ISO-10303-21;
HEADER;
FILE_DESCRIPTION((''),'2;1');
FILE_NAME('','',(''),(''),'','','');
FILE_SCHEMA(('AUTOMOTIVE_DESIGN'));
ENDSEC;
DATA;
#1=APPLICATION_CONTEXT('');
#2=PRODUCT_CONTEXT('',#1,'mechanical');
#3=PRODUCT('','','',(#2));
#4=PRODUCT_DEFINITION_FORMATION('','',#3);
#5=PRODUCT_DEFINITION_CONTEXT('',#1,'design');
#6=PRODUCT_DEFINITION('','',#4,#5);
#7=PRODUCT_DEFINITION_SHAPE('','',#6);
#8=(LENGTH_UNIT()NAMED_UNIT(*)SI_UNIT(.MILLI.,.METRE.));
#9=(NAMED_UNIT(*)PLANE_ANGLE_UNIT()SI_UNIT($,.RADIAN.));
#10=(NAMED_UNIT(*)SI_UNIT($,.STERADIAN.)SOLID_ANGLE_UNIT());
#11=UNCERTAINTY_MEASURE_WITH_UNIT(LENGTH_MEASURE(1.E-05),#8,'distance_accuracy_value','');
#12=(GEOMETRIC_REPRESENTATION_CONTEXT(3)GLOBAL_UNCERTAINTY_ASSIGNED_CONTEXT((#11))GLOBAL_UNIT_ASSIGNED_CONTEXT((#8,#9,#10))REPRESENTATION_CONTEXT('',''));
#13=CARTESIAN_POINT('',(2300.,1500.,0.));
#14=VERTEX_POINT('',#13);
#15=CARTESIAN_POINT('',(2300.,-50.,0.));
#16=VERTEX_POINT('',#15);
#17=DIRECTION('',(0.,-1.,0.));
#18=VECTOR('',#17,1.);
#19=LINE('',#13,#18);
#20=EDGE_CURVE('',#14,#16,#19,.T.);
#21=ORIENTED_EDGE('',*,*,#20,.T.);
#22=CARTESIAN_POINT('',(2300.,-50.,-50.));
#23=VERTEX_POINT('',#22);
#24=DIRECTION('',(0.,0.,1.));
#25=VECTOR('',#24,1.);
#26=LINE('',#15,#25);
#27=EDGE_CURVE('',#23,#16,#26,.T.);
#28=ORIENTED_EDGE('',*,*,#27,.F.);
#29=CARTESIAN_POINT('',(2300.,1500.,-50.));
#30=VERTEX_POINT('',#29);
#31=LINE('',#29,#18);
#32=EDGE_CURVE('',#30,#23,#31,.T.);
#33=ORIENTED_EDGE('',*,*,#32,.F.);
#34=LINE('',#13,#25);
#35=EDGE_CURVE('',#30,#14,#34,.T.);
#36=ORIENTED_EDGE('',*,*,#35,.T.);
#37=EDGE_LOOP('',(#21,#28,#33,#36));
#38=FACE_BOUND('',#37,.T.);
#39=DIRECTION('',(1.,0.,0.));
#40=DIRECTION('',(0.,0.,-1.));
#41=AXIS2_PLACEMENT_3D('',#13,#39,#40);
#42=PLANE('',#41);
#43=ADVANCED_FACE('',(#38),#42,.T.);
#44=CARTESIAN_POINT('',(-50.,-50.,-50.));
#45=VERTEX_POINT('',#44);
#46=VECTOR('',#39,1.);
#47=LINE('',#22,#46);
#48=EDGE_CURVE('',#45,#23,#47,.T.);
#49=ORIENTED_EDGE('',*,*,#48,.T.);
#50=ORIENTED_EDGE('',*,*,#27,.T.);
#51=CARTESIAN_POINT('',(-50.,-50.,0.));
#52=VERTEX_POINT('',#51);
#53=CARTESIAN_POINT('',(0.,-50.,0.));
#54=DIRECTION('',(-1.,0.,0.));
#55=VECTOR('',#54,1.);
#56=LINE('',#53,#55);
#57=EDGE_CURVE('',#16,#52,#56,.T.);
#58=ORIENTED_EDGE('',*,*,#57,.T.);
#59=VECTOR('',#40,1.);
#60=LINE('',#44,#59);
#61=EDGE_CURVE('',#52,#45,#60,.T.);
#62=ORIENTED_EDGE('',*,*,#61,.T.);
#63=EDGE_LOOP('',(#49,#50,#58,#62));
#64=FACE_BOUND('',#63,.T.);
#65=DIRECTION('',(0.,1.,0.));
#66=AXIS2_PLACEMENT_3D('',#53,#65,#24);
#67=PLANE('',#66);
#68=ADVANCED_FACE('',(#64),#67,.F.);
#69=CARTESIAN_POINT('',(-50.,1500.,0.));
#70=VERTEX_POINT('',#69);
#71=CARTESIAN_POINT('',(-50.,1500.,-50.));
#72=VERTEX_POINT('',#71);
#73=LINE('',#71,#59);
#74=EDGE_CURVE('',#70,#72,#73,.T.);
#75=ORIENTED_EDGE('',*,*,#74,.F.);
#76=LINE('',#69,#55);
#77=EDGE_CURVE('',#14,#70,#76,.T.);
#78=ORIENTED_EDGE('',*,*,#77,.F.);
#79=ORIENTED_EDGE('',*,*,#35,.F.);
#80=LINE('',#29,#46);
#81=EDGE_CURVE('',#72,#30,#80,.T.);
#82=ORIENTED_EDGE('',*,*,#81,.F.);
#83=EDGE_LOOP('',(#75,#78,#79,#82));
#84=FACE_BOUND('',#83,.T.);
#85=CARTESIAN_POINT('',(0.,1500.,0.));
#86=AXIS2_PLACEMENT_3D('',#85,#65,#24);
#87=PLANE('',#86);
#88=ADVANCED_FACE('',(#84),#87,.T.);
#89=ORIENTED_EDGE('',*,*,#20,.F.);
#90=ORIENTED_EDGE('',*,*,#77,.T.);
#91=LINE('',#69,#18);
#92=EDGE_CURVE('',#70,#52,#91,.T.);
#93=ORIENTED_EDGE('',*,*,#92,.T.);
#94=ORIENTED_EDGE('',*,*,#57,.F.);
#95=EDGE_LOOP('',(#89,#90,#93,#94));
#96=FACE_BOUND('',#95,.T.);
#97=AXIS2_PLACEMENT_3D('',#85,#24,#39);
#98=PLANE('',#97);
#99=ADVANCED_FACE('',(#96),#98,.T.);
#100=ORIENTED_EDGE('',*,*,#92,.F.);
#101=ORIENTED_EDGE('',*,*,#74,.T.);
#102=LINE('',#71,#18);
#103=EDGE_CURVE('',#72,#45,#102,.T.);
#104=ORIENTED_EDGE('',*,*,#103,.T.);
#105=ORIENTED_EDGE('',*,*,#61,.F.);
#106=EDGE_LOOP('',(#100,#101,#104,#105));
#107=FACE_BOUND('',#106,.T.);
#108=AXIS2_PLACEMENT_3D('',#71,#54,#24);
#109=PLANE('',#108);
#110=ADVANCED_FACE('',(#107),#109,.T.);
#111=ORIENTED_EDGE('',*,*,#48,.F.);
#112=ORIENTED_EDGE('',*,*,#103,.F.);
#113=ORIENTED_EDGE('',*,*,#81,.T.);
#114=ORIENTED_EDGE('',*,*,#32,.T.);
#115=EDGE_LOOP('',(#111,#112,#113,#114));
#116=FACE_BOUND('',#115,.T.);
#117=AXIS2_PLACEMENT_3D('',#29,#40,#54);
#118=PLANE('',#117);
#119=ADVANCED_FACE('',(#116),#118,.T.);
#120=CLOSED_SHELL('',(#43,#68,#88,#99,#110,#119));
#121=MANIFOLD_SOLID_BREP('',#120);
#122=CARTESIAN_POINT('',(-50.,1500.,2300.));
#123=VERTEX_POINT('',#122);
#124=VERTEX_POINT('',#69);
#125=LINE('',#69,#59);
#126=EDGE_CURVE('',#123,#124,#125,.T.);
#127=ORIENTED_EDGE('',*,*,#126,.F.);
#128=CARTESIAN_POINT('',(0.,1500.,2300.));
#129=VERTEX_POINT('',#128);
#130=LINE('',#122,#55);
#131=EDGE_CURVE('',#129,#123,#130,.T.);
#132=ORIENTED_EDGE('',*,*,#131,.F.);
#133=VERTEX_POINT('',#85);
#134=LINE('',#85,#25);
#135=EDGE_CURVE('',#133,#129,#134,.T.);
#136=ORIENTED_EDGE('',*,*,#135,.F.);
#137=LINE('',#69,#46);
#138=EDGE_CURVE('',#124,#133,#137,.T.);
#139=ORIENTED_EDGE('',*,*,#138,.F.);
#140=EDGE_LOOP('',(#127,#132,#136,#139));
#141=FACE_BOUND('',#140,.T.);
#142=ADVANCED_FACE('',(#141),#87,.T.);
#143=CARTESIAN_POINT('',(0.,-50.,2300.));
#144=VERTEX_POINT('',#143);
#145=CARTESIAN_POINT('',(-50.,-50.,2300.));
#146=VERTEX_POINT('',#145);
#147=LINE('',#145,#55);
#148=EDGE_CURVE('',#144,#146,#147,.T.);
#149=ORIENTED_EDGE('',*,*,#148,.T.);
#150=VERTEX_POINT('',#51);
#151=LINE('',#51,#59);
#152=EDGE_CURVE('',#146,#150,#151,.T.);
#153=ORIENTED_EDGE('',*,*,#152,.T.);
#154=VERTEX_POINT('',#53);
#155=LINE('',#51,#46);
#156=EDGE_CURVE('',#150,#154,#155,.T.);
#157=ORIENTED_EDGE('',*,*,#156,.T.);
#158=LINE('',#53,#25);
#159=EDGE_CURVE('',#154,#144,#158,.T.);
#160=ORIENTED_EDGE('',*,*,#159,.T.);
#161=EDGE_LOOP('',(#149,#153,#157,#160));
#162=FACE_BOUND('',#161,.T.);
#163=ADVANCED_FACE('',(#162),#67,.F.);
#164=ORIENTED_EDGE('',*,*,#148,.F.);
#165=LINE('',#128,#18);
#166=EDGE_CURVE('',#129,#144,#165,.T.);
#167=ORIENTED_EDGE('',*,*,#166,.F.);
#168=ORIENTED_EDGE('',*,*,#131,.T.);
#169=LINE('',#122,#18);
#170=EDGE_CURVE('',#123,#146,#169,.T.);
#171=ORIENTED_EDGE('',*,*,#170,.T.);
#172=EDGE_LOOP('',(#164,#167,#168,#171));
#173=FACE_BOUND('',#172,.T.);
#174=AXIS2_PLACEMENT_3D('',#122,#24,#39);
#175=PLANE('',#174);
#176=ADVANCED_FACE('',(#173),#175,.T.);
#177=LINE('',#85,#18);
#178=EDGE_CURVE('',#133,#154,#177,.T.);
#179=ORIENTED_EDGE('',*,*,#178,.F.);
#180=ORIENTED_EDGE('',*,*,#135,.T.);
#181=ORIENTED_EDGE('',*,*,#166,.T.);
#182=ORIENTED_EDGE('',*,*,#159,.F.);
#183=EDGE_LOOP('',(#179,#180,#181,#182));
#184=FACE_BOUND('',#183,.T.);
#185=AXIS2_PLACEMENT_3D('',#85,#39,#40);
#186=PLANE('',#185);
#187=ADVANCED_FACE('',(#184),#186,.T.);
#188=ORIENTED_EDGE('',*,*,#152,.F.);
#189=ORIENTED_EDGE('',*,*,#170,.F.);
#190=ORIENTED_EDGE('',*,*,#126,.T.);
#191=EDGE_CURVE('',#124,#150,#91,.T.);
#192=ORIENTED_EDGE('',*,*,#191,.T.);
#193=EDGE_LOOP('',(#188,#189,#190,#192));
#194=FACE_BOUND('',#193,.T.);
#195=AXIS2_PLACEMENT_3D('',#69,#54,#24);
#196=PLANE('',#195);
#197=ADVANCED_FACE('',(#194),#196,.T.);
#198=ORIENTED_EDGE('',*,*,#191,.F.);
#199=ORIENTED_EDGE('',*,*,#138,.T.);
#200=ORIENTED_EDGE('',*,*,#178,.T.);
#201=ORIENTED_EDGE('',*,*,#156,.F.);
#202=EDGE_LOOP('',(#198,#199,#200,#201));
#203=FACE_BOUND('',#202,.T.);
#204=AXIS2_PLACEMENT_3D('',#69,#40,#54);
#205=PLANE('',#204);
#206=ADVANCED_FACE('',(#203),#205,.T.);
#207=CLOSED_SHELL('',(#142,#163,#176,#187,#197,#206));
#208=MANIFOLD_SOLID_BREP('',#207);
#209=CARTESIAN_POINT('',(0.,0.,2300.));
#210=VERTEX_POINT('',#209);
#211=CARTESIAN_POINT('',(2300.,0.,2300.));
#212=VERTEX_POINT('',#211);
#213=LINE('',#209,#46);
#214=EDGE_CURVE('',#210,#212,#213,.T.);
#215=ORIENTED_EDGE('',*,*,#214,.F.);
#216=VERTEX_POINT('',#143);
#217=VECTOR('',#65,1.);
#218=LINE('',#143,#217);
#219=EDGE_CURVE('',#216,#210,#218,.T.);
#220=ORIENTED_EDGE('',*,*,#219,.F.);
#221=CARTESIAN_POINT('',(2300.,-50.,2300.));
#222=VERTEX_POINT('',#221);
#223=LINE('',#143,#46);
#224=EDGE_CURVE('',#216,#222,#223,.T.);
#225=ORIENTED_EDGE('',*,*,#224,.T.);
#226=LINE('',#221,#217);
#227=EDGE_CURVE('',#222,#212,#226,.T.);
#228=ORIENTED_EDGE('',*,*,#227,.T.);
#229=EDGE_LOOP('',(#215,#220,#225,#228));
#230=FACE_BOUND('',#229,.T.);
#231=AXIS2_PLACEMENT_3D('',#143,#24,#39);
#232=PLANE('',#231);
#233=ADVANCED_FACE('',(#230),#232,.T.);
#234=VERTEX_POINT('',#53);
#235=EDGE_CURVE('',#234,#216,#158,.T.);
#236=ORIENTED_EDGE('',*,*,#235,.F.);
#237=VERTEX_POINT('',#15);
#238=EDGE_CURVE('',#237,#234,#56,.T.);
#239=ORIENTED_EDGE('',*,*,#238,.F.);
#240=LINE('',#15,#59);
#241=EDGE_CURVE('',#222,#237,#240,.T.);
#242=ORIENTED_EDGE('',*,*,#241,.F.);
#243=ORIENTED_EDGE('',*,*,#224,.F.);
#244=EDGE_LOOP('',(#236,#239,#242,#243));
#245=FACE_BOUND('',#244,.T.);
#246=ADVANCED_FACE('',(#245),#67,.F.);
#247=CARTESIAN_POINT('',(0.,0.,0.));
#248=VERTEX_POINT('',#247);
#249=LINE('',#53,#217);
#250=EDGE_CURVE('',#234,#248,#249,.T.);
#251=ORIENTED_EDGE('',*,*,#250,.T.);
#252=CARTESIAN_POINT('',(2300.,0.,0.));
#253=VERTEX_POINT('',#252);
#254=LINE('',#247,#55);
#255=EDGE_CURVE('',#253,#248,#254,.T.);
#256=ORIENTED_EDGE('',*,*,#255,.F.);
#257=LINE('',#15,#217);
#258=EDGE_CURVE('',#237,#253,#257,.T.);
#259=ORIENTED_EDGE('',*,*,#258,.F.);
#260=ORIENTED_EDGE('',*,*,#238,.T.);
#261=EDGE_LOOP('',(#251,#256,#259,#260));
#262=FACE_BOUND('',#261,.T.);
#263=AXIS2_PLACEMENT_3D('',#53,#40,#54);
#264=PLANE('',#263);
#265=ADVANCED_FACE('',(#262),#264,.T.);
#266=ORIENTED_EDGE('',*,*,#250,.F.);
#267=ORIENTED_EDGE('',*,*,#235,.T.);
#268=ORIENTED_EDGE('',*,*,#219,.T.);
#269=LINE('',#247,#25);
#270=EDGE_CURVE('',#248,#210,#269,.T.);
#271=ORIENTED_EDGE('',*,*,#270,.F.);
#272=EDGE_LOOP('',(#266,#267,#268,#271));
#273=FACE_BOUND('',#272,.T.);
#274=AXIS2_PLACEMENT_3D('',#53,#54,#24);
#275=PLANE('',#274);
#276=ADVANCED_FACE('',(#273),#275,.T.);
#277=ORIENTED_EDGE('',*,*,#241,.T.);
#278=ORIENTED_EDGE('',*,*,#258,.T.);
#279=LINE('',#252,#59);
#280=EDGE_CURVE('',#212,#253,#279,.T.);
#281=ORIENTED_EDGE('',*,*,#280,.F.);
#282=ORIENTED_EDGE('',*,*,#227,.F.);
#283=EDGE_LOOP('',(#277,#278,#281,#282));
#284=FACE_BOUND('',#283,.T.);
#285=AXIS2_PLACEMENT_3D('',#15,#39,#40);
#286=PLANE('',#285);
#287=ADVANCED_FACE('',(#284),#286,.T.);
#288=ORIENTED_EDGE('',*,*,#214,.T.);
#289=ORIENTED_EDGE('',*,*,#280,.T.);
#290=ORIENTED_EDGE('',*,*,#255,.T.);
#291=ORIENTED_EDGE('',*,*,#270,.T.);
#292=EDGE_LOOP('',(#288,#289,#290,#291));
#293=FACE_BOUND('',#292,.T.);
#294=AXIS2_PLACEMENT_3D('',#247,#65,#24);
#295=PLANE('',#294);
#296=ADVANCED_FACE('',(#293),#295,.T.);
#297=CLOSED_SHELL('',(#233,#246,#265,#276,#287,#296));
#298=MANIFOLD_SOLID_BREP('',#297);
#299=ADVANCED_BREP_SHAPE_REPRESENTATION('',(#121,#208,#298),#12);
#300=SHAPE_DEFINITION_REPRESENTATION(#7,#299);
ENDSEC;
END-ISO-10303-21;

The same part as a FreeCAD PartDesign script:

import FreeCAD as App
import Part
import Sketcher
Q = App.Units.Quantity


def add_polygon(sketch, points):
    """Adds a closed chain of lines whose ends are joined by coincident constraints."""
    first, n = sketch.GeometryCount, len(points)
    for a, b in zip(points, points[1:] + points[:1]):
        sketch.addGeometry(Part.LineSegment(App.Vector(*a, 0), App.Vector(*b, 0)), False)
    for i in range(n):
        sketch.addConstraint(Sketcher.Constraint("Coincident", first + i, 2, first + (i + 1) % n, 1))

doc = App.newDocument("Part")
body = doc.addObject("PartDesign::Body", "Body")

# Sketch on XZ plane
sketch1 = body.newObject("Sketcher::SketchObject", "Sketch")
sketch1.AttachmentSupport = (doc.getObject("XZ_Plane"), [""])
sketch1.MapMode = "FlatFace"
add_polygon(sketch1, [(0, 0), (0, 2300), (2300, 2300), (2300, 0)])  # lines 0-3
sketch1.addConstraint([
    Sketcher.Constraint("Vertical", 0),
    Sketcher.Constraint("Horizontal", 1),
    Sketcher.Constraint("Vertical", 2),
    Sketcher.Constraint("Horizontal", 3),
    Sketcher.Constraint("Coincident", 3, 2, -1, 1),
    Sketcher.Constraint("Equal", 3, 0),
    Sketcher.Constraint("DistanceX", 1, 1, 1, 2, Q("2300 mm")),
])
pad1 = body.newObject("PartDesign::Pad", "Pad")
pad1.Profile = sketch1
pad1.Length = 50
body2 = doc.addObject("PartDesign::Body", "Body001")

# Sketch on XZ plane
sketch2 = body2.newObject("Sketcher::SketchObject", "Sketch001")
sketch2.AttachmentSupport = (doc.getObject("XZ_Plane001"), [""])
sketch2.MapMode = "FlatFace"
sketch2.AttachmentOffset = App.Placement(App.Vector(0, 0, 50), App.Rotation())
add_polygon(sketch2, [(2300, 0), (-50, 0), (-50, -50), (2300, -50)])  # lines 0-3
sketch2.addConstraint([
    Sketcher.Constraint("Horizontal", 0),
    Sketcher.Constraint("Vertical", 1),
    Sketcher.Constraint("Horizontal", 2),
    Sketcher.Constraint("Vertical", 3),
    Sketcher.Constraint("PointOnObject", 0, 2, -1),
    Sketcher.Constraint("DistanceX", 0, 2, 0, 1, Q("2350 mm")),
    Sketcher.Constraint("DistanceY", 1, 2, 1, 1, Q("50 mm")),
    Sketcher.Constraint("DistanceX", 0, 2, -1, 1, Q("50 mm")),
])
pad2 = body2.newObject("PartDesign::Pad", "Pad001")
pad2.Profile = sketch2
pad2.Length = 1550
pad2.Reversed = True
body3 = doc.addObject("PartDesign::Body", "Body002")

# Sketch on XZ plane
sketch3 = body3.newObject("Sketcher::SketchObject", "Sketch002")
sketch3.AttachmentSupport = (doc.getObject("XZ_Plane002"), [""])
sketch3.MapMode = "FlatFace"
sketch3.AttachmentOffset = App.Placement(App.Vector(0, 0, 50), App.Rotation())
add_polygon(sketch3, [(-50, 2300), (-50, 0), (0, 0), (0, 2300)])  # lines 0-3
sketch3.addConstraint([
    Sketcher.Constraint("Vertical", 0),
    Sketcher.Constraint("Horizontal", 1),
    Sketcher.Constraint("Vertical", 2),
    Sketcher.Constraint("Horizontal", 3),
    Sketcher.Constraint("Coincident", 1, 2, -1, 1),
    Sketcher.Constraint("DistanceX", 1, 1, 1, 2, Q("50 mm")),
    Sketcher.Constraint("DistanceY", 0, 2, 0, 1, Q("2300 mm")),
])
pad3 = body3.newObject("PartDesign::Pad", "Pad002")
pad3.Profile = sketch3
pad3.Length = 1550
pad3.Reversed = True

doc.recompute()
